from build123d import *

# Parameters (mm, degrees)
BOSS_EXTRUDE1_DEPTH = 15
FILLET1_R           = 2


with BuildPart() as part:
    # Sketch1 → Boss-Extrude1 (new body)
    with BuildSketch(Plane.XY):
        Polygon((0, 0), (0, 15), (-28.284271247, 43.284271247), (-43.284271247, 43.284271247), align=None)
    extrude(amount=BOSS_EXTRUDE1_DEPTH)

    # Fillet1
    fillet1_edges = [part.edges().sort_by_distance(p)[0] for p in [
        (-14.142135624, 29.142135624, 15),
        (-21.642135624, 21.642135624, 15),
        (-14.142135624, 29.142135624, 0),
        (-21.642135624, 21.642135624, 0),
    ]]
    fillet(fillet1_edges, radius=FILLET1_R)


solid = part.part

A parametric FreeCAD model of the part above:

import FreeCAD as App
import Part
import Sketcher
Q = App.Units.Quantity


def edges_at(feature, points):
    """Names of the edges that pass closest to the given points."""
    edges = feature.Shape.Edges
    near = lambda p: min(range(len(edges)), key=lambda i: edges[i].distToShape(Part.Vertex(*p))[0])
    return sorted({f"Edge{near(p) + 1}" for p in points})


def add_polygon(sketch, points):
    """Adds a closed chain of lines whose ends are joined by coincident constraints."""
    first, n = sketch.GeometryCount, len(points)
    for a, b in zip(points, points[1:] + points[:1]):
        sketch.addGeometry(Part.LineSegment(App.Vector(*a, 0), App.Vector(*b, 0)), False)
    for i in range(n):
        sketch.addConstraint(Sketcher.Constraint("Coincident", first + i, 2, first + (i + 1) % n, 1))

doc = App.newDocument("Part")
params = doc.addObject("Spreadsheet::Sheet", "Params")
for row, (alias, value) in enumerate([
    ("sketch1_width", "15 mm"),
    ("sketch1_length", "40 mm"),
    ("pad1_length", "15 mm"),
    ("fillet_radius", "2 mm"),
], start=1):
    params.set(f"A{row}", alias)
    params.set(f"B{row}", "=" + value)
    params.setAlias(f"B{row}", alias)

body = doc.addObject("PartDesign::Body", "Body")

# Sketch on XY plane
sketch1 = doc.addObject("Sketcher::SketchObject", "Sketch")
body.addObject(sketch1)
sketch1.AttachmentSupport = (doc.XY_Plane, [""])
sketch1.MapMode = "FlatFace"
add_polygon(sketch1, [(0, 0), (0, 15), (-28.284271, 43.284271), (-43.284271, 43.284271)])  # lines 0-3
sketch1.addConstraint(Sketcher.Constraint("Vertical", 0))
sketch1.addConstraint(Sketcher.Constraint("Horizontal", 2))
sketch1.addConstraint(Sketcher.Constraint("Coincident", 3, 2, -1, 1))
sketch1.addConstraint(Sketcher.Constraint("Parallel", 1, 3))
sketch1.addConstraint(Sketcher.Constraint("Equal", 2, 0))
sketch1.addConstraint(Sketcher.Constraint("DistanceX", 2, 2, 2, 1, Q("15 mm")))
sketch1.addConstraint(Sketcher.Constraint("Distance", 1, Q("40 mm")))
sketch1.setExpression("Constraints[9]", "Params.sketch1_width")
sketch1.setExpression("Constraints[10]", "Params.sketch1_length")
pad1 = doc.addObject("PartDesign::Pad", "Pad")
body.addObject(pad1)
pad1.Profile = sketch1
pad1.setExpression("Length", "Params.pad1_length")
doc.recompute()

fillet = doc.addObject("PartDesign::Fillet", "Fillet")
body.addObject(fillet)
fillet.Base = (pad1, edges_at(pad1, [
    (-14.142, 29.142, 15),
    (-21.642, 21.642, 15),
    (-14.142, 29.142, 0),
    (-21.642, 21.642, 0),
]))
fillet.setExpression("Radius", "Params.fillet_radius")

doc.recompute()
